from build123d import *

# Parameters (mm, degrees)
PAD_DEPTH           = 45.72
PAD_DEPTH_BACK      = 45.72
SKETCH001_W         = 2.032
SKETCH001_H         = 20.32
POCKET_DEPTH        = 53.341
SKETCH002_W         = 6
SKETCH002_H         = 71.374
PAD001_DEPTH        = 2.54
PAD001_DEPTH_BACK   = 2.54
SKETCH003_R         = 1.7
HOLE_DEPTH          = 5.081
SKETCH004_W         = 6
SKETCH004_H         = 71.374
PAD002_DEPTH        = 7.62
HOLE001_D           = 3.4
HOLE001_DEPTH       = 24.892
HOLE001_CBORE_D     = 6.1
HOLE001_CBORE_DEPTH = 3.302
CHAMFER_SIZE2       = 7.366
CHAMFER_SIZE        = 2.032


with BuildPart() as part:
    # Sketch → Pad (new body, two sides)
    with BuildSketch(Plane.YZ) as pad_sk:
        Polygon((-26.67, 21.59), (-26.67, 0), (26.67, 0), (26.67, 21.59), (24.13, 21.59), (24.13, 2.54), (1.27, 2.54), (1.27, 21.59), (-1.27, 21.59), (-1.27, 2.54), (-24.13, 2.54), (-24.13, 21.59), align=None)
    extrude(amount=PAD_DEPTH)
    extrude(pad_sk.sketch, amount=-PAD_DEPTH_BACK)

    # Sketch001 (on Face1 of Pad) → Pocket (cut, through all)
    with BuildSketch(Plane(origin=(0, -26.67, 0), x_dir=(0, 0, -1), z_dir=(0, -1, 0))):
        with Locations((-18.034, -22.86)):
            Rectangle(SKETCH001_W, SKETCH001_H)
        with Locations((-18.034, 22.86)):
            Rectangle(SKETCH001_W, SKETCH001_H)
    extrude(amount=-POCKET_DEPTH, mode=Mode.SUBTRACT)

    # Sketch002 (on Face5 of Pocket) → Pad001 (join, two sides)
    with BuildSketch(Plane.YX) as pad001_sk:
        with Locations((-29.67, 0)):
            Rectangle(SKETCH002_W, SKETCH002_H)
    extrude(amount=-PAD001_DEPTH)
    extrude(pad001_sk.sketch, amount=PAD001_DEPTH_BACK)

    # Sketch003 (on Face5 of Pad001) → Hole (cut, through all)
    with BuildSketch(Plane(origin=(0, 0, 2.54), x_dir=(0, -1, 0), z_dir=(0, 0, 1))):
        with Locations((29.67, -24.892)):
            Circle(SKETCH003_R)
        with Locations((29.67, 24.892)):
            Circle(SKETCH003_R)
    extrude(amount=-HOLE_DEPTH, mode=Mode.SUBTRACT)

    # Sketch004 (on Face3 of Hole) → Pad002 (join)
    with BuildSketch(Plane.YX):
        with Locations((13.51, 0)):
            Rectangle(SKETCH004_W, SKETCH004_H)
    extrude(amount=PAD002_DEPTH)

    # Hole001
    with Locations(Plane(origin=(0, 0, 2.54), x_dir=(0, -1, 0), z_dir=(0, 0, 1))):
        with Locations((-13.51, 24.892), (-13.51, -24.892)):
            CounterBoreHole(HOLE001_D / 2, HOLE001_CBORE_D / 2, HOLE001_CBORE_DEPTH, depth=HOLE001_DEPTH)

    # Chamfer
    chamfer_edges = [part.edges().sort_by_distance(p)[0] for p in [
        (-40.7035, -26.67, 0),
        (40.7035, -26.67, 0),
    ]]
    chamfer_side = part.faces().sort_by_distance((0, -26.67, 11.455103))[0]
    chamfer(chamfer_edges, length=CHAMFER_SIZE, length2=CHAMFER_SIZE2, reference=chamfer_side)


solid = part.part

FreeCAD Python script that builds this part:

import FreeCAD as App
import Part
import Sketcher
from FreeCAD import Vector
Q = App.Units.Quantity


def edges_at(feature, points):
    """Names of the edges that pass closest to the given points."""
    edges = feature.Shape.Edges
    near = lambda p: min(range(len(edges)), key=lambda i: edges[i].distToShape(Part.Vertex(*p))[0])
    return sorted({f"Edge{near(p) + 1}" for p in points})

doc = App.newDocument("Part")
body = doc.addObject("PartDesign::Body", "Body")

sketch1 = body.newObject("Sketcher::SketchObject", "Sketch")
sketch1.AttachmentSupport = (doc.getObject("YZ_Plane"), [""])
sketch1.MapMode = "FlatFace"
sketch1.addGeometry([
    Part.LineSegment(Vector(-26.7, 21.6, 0), Vector(-26.7, 0, 0)),
    Part.LineSegment(Vector(-26.7, 0, 0), Vector(26.7, 0, 0)),
    Part.LineSegment(Vector(26.7, 0, 0), Vector(26.7, 21.6, 0)),
    Part.LineSegment(Vector(26.7, 21.6, 0), Vector(24.1, 21.6, 0)),
    Part.LineSegment(Vector(24.1, 21.6, 0), Vector(24.1, 2.5, 0)),
    Part.LineSegment(Vector(24.1, 2.5, 0), Vector(1.3, 2.5, 0)),
    Part.LineSegment(Vector(1.3, 2.5, 0), Vector(1.3, 21.6, 0)),
    Part.LineSegment(Vector(1.3, 21.6, 0), Vector(-1.3, 21.6, 0)),
    Part.LineSegment(Vector(-1.3, 21.6, 0), Vector(-1.3, 2.5, 0)),
    Part.LineSegment(Vector(-1.3, 2.5, 0), Vector(-24.1, 2.5, 0)),
    Part.LineSegment(Vector(-24.1, 2.5, 0), Vector(-24.1, 21.6, 0)),
    Part.LineSegment(Vector(-24.1, 21.6, 0), Vector(-26.7, 21.6, 0)),
], False)
sketch1.addConstraint([
    Sketcher.Constraint("Coincident", 0, 2, 1, 1),
    Sketcher.Constraint("Coincident", 1, 2, 2, 1),
    Sketcher.Constraint("Coincident", 2, 2, 3, 1),
    Sketcher.Constraint("Coincident", 3, 2, 4, 1),
    Sketcher.Constraint("Coincident", 4, 2, 5, 1),
    Sketcher.Constraint("Coincident", 5, 2, 6, 1),
    Sketcher.Constraint("Coincident", 6, 2, 7, 1),
    Sketcher.Constraint("Coincident", 7, 2, 8, 1),
    Sketcher.Constraint("Coincident", 8, 2, 9, 1),
    Sketcher.Constraint("Coincident", 9, 2, 10, 1),
    Sketcher.Constraint("Coincident", 10, 2, 11, 1),
    Sketcher.Constraint("Coincident", 11, 2, 0, 1),
    Sketcher.Constraint("Vertical", 0),
    Sketcher.Constraint("Horizontal", 1),
    Sketcher.Constraint("Vertical", 2),
    Sketcher.Constraint("Horizontal", 3),
    Sketcher.Constraint("Vertical", 4),
    Sketcher.Constraint("Horizontal", 5),
    Sketcher.Constraint("Vertical", 6),
    Sketcher.Constraint("Horizontal", 7),
    Sketcher.Constraint("Vertical", 8),
    Sketcher.Constraint("Horizontal", 9),
    Sketcher.Constraint("Vertical", 10),
    Sketcher.Constraint("Horizontal", 11),
    Sketcher.Constraint("Symmetric", 0, 2, 1, 2, -1, 1),
    Sketcher.Constraint("Symmetric", 5, 2, 8, 2, -2),
    Sketcher.Constraint("Symmetric", 3, 2, 10, 2, -2),
    Sketcher.Constraint("Horizontal", 3, 2, 6, 2),
    Sketcher.Constraint("Equal", 3, 7),
    Sketcher.Constraint("DistanceX", 1, 1, 1, 2, Q("2.1 in")),
    Sketcher.Constraint("DistanceX", 3, 2, 3, 1, Q("0.1 in")),
    Sketcher.Constraint("DistanceY", 0, 2, 0, 1, Q("0.85 in")),
    Sketcher.Constraint("DistanceY", 4, 2, 4, 1, Q("0.75 in")),
])
pad1 = body.newObject("PartDesign::Pad", "Pad")
pad1.Profile = sketch1
pad1.Type = "TwoLengths"
pad1.Length = Q("1.8 in")
pad1.Length2 = Q("1.8 in")

sketch2 = body.newObject("Sketcher::SketchObject", "Sketch001")
sketch2.AttachmentSupport = (doc.getObject("XZ_Plane"), [""])
sketch2.MapMode = "FlatFace"
sketch2.AttachmentOffset = App.Placement(Vector(0, 0, 1.05 * 25.4), App.Rotation())
sketch2.addGeometry([
    Part.LineSegment(Vector(-12.7, 19.1, 0), Vector(-33, 19.1, 0)),
    Part.LineSegment(Vector(-33, 19.1, 0), Vector(-33, 17, 0)),
    Part.LineSegment(Vector(-33, 17, 0), Vector(-12.7, 17, 0)),
    Part.LineSegment(Vector(-12.7, 17, 0), Vector(-12.7, 19.1, 0)),
    Part.LineSegment(Vector(33, 19.1, 0), Vector(12.7, 19.1, 0)),
    Part.LineSegment(Vector(12.7, 19.1, 0), Vector(12.7, 17, 0)),
    Part.LineSegment(Vector(12.7, 17, 0), Vector(33, 17, 0)),
    Part.LineSegment(Vector(33, 17, 0), Vector(33, 19.1, 0)),
], False)
sketch2.addConstraint([
    Sketcher.Constraint("Coincident", 0, 2, 1, 1),
    Sketcher.Constraint("Coincident", 1, 2, 2, 1),
    Sketcher.Constraint("Coincident", 2, 2, 3, 1),
    Sketcher.Constraint("Coincident", 3, 2, 0, 1),
    Sketcher.Constraint("Coincident", 4, 2, 5, 1),
    Sketcher.Constraint("Coincident", 5, 2, 6, 1),
    Sketcher.Constraint("Coincident", 6, 2, 7, 1),
    Sketcher.Constraint("Coincident", 7, 2, 4, 1),
    Sketcher.Constraint("Horizontal", 0),
    Sketcher.Constraint("Vertical", 1),
    Sketcher.Constraint("Horizontal", 2),
    Sketcher.Constraint("Vertical", 3),
    Sketcher.Constraint("Horizontal", 4),
    Sketcher.Constraint("Vertical", 5),
    Sketcher.Constraint("Horizontal", 6),
    Sketcher.Constraint("Vertical", 7),
    Sketcher.Constraint("Symmetric", 3, 2, 4, 2, -2),
    Sketcher.Constraint("Symmetric", 1, 2, 6, 2, -2),
    Sketcher.Constraint("DistanceX", 0, 2, 0, 1, Q("0.8 in")),
    Sketcher.Constraint("DistanceX", 3, 2, 4, 2, Q("1 in")),
    Sketcher.Constraint("DistanceY", 1, 2, 1, 1, Q("0.08 in")),
    Sketcher.Constraint("DistanceY", -1, 1, 0, 2, Q("0.75 in")),
])
pocket1 = body.newObject("PartDesign::Pocket", "Pocket")
pocket1.Profile = sketch2
pocket1.Type = "ThroughAll"

sketch3 = body.newObject("Sketcher::SketchObject", "Sketch002")
sketch3.AttachmentSupport = (doc.getObject("XY_Plane"), [""])
sketch3.MapMode = "FlatFace"
sketch3.addGeometry([
    Part.LineSegment(Vector(36, -33, 0), Vector(-36, -33, 0)),
    Part.LineSegment(Vector(-36, -33, 0), Vector(-36, -27, 0)),
    Part.LineSegment(Vector(-36, -27, 0), Vector(36, -27, 0)),
    Part.LineSegment(Vector(36, -27, 0), Vector(36, -33, 0)),
], False)
sketch3.addConstraint([
    Sketcher.Constraint("Coincident", 0, 2, 1, 1),
    Sketcher.Constraint("Coincident", 1, 2, 2, 1),
    Sketcher.Constraint("Coincident", 2, 2, 3, 1),
    Sketcher.Constraint("Coincident", 3, 2, 0, 1),
    Sketcher.Constraint("Horizontal", 0),
    Sketcher.Constraint("Vertical", 1),
    Sketcher.Constraint("Horizontal", 2),
    Sketcher.Constraint("Vertical", 3),
    Sketcher.Constraint("DistanceX", 0, 2, 0, 1, Q("2.81 in")),
    Sketcher.Constraint("DistanceY", 1, 2, -1, 1, Q("1.05 in")),
    Sketcher.Constraint("DistanceX", 0, 2, -1, 1, Q("1.405 in")),
    Sketcher.Constraint("DistanceY", 1, 1, 1, 2, Q("6 mm")),
])
pad2 = body.newObject("PartDesign::Pad", "Pad001")
pad2.Profile = sketch3
pad2.Type = "TwoLengths"
pad2.Length = Q("0.1 in")
pad2.Length2 = Q("0.1 in")

sketch4 = body.newObject("Sketcher::SketchObject", "Sketch003")
sketch4.AttachmentSupport = (doc.getObject("XY_Plane"), [""])
sketch4.MapMode = "FlatFace"
sketch4.AttachmentOffset = App.Placement(Vector(0, 0, 0.1 * 25.4), App.Rotation())
sketch4.addGeometry([
    Part.Circle(Vector(-24.9, -29.7, 0), Vector(0, 0, 1), 1.7),
    Part.Circle(Vector(24.9, -29.7, 0), Vector(0, 0, 1), 1.7),
], False)
sketch4.addConstraint([
    Sketcher.Constraint("Equal", 0, 1),
    Sketcher.Constraint("Symmetric", 0, 3, 1, 3, -2),
    Sketcher.Constraint("Diameter", 0, Q("3.4 mm")),
    Sketcher.Constraint("DistanceX", 0, 3, -1, 1, Q("0.98 in")),
    Sketcher.Constraint("DistanceY", 0, 3, -1, 1, Q("29.67 mm")),
])
pocket2 = body.newObject("PartDesign::Pocket", "Pocket001")
pocket2.Profile = sketch4
pocket2.Type = "ThroughAll"

sketch5 = body.newObject("Sketcher::SketchObject", "Sketch004")
sketch5.AttachmentSupport = (doc.getObject("XY_Plane"), [""])
sketch5.MapMode = "FlatFace"
sketch5.addGeometry([
    Part.LineSegment(Vector(36, 11, 0), Vector(-36, 11, 0)),
    Part.LineSegment(Vector(-36, 11, 0), Vector(-36, 17, 0)),
    Part.LineSegment(Vector(-36, 17, 0), Vector(36, 17, 0)),
    Part.LineSegment(Vector(36, 17, 0), Vector(36, 11, 0)),
], False)
sketch5.addConstraint([
    Sketcher.Constraint("Coincident", 0, 2, 1, 1),
    Sketcher.Constraint("Coincident", 1, 2, 2, 1),
    Sketcher.Constraint("Coincident", 2, 2, 3, 1),
    Sketcher.Constraint("Coincident", 3, 2, 0, 1),
    Sketcher.Constraint("Horizontal", 0),
    Sketcher.Constraint("Vertical", 1),
    Sketcher.Constraint("Horizontal", 2),
    Sketcher.Constraint("Vertical", 3),
    Sketcher.Constraint("DistanceX", 0, 2, 0, 1, Q("2.81 in")),
    Sketcher.Constraint("DistanceY", -1, 1, 1, 2, Q("0.65 in")),
    Sketcher.Constraint("DistanceX", 0, 2, -1, 1, Q("1.405 in")),
    Sketcher.Constraint("DistanceY", 1, 1, 1, 2, Q("6 mm")),
])
pad3 = body.newObject("PartDesign::Pad", "Pad002")
pad3.Profile = sketch5
pad3.Length = Q("0.3 in")
pad3.Reversed = True

sketch6 = body.newObject("Sketcher::SketchObject", "Sketch005")
sketch6.AttachmentSupport = (doc.getObject("XY_Plane"), [""])
sketch6.MapMode = "FlatFace"
sketch6.AttachmentOffset = App.Placement(Vector(0, 0, 0.1 * 25.4), App.Rotation())
sketch6.addGeometry([
    Part.Circle(Vector(24.9, 13.5, 0), Vector(0, 0, 1), 1.7),
    Part.Circle(Vector(-24.9, 13.5, 0), Vector(0, 0, 1), 1.7),
], False)
sketch6.addConstraint([
    Sketcher.Constraint("Equal", 0, 1),
    Sketcher.Constraint("Symmetric", 0, 3, 1, 3, -2),
    Sketcher.Constraint("Diameter", 0, Q("3.4 mm")),
    Sketcher.Constraint("DistanceX", -1, 1, 0, 3, Q("0.98 in")),
    Sketcher.Constraint("DistanceY", -1, 1, 0, 3, Q("13.51 mm")),
])
doc.recompute()
hole = body.newObject("PartDesign::Hole", "Hole")
hole.Profile = sketch6
hole.ThreadType = "None"
hole.Diameter = 3.4
hole.DepthType = "Dimension"
hole.Depth = Q("0.98 in")
hole.DrillPoint = "Flat"
hole.HoleCutType = "Counterbore"
hole.HoleCutDiameter = 6.1
hole.HoleCutDepth = Q("0.13 in")
doc.recompute()

chamfer = body.newObject("PartDesign::Chamfer", "Chamfer")
chamfer.Base = (hole, edges_at(hole, [(-40.703, -26.67, 0), (40.703, -26.67, 0)]))
chamfer.ChamferType = "Two distances"
chamfer.Size = Q("0.08 in")
chamfer.Size2 = Q("0.29 in")

doc.recompute()
